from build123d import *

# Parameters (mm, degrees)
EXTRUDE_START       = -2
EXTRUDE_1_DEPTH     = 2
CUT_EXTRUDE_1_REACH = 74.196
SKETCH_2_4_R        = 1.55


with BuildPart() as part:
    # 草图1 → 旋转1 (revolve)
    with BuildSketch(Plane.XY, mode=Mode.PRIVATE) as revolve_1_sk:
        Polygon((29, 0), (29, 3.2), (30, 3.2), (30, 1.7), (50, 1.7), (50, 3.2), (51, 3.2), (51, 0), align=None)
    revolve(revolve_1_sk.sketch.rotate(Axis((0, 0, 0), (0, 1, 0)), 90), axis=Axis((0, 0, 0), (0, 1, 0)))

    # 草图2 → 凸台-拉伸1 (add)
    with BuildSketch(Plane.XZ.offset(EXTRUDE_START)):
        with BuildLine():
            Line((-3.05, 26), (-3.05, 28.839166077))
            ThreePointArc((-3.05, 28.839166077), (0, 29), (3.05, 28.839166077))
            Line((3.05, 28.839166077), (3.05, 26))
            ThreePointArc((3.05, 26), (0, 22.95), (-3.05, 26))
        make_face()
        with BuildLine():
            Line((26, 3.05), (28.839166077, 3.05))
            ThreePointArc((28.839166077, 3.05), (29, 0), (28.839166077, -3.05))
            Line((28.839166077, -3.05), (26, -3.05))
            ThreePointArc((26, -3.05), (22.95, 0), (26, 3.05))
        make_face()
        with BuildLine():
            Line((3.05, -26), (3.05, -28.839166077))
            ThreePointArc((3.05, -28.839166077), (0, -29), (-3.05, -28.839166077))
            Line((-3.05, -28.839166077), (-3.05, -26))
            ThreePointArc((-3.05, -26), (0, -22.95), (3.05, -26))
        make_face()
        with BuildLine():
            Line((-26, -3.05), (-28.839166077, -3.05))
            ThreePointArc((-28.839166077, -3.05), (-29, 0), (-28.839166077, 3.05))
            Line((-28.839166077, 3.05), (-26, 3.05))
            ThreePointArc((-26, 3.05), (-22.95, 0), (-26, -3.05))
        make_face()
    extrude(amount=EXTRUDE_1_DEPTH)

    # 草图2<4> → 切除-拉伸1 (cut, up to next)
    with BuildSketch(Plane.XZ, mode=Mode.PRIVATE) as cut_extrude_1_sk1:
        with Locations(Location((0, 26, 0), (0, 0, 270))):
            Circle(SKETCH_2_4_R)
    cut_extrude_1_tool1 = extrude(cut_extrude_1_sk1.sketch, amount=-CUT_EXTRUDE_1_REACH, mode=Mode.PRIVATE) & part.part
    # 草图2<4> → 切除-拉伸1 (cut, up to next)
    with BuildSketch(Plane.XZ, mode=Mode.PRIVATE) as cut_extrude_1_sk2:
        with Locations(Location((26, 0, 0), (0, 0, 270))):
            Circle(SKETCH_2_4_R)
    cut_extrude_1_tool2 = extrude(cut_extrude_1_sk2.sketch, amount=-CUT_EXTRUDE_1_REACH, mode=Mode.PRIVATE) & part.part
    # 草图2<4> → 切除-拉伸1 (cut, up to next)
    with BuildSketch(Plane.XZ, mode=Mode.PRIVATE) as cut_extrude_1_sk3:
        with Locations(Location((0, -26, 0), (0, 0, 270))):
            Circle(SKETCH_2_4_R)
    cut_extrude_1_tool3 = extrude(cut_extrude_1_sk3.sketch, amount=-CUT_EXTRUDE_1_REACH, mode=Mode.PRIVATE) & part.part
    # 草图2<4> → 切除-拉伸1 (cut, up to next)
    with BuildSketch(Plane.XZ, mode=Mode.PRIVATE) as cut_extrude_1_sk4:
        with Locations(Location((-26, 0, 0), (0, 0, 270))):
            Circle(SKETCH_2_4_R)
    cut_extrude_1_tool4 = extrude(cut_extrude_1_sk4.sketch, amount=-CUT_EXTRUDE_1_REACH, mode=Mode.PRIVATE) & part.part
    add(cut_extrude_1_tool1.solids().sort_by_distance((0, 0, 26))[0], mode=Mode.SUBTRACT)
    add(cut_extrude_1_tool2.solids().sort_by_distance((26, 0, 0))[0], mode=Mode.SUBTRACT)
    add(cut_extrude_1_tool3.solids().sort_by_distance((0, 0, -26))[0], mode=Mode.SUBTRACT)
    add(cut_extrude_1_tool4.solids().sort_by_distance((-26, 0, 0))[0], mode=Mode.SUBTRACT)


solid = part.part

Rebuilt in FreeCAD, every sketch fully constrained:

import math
import FreeCAD as App
import Part
import Sketcher
from FreeCAD import Vector
Q = App.Units.Quantity


def add_polygon(sketch, points):
    """Adds a closed chain of lines whose ends are joined by coincident constraints."""
    first, n = sketch.GeometryCount, len(points)
    for a, b in zip(points, points[1:] + points[:1]):
        sketch.addGeometry(Part.LineSegment(App.Vector(*a, 0), App.Vector(*b, 0)), False)
    for i in range(n):
        sketch.addConstraint(Sketcher.Constraint("Coincident", first + i, 2, first + (i + 1) % n, 1))

doc = App.newDocument("Part")
body = doc.addObject("PartDesign::Body", "Body")

sketch1 = body.newObject("Sketcher::SketchObject", "Sketch")
sketch1.AttachmentSupport = (doc.getObject("XY_Plane"), [""])
sketch1.MapMode = "FlatFace"
add_polygon(sketch1, [(29, 3.2), (29, 0), (51, 0), (51, 3.2), (50, 3.2), (50, 1.7), (30, 1.7), (30, 3.2)])
sketch1.addConstraint(Sketcher.Constraint("Vertical", 0))
sketch1.addConstraint(Sketcher.Constraint("Horizontal", 1))
sketch1.addConstraint(Sketcher.Constraint("Vertical", 2))
sketch1.addConstraint(Sketcher.Constraint("Horizontal", 3))
sketch1.addConstraint(Sketcher.Constraint("Vertical", 4))
sketch1.addConstraint(Sketcher.Constraint("Horizontal", 5))
sketch1.addConstraint(Sketcher.Constraint("Vertical", 6))
sketch1.addConstraint(Sketcher.Constraint("Horizontal", 7))
sketch1.addConstraint(Sketcher.Constraint("PointOnObject", 0, 2, -1))
sketch1.addConstraint(Sketcher.Constraint("Horizontal", 3, 2, 6, 2))
sketch1.addConstraint(Sketcher.Constraint("Equal", 3, 7))
sketch1.addConstraint(Sketcher.Constraint("DistanceX", 1, 1, 1, 2, Q("22 mm")))
sketch1.addConstraint(Sketcher.Constraint("DistanceX", 3, 2, 3, 1, Q("1 mm")))
sketch1.addConstraint(Sketcher.Constraint("DistanceY", 0, 2, 0, 1, Q("3.2 mm")))
sketch1.addConstraint(Sketcher.Constraint("DistanceY", 4, 2, 4, 1, Q("1.5 mm")))
sketch1.addConstraint(Sketcher.Constraint("DistanceX", -1, 1, 0, 2, Q("29 mm")))
revolution = body.newObject("PartDesign::Revolution", "Revolution")
revolution.Profile = sketch1
revolution.ReferenceAxis = (sketch1, ["V_Axis"])
revolution.Angle = 360

sketch2 = body.newObject("Sketcher::SketchObject", "Sketch001")
sketch2.AttachmentSupport = (doc.getObject("XZ_Plane"), [""])
sketch2.MapMode = "FlatFace"
sketch2.AttachmentOffset = App.Placement(Vector(0, 0, -2), App.Rotation())
sketch2.addGeometry(Part.LineSegment(Vector(-3, 28.8, 0), Vector(-3, 26, 0)), False)
sketch2.addGeometry(Part.ArcOfCircle(Part.Circle(Vector(0, 26, 0), Vector(0, 0, 1), 3), math.radians(180), math.radians(360)), False)
sketch2.addGeometry(Part.LineSegment(Vector(3, 26, 0), Vector(3, 28.8, 0)), False)
sketch2.addGeometry(Part.ArcOfCircle(Part.Circle(Vector(0, 0, 0), Vector(0, 0, 1), 29), math.radians(83.96), math.radians(96.04)), False)
sketch2.addGeometry(Part.LineSegment(Vector(28.8, 3, 0), Vector(26, 3, 0)), False)
sketch2.addGeometry(Part.ArcOfCircle(Part.Circle(Vector(26, 0, 0), Vector(0, 0, 1), 3), math.radians(90), math.radians(270)), False)
sketch2.addGeometry(Part.LineSegment(Vector(26, -3, 0), Vector(28.8, -3, 0)), False)
sketch2.addGeometry(Part.ArcOfCircle(Part.Circle(Vector(0, 0, 0), Vector(0, 0, 1), 29), math.radians(-6.04), math.radians(6.04)), False)
sketch2.addGeometry(Part.LineSegment(Vector(3, -28.8, 0), Vector(3, -26, 0)), False)
sketch2.addGeometry(Part.ArcOfCircle(Part.Circle(Vector(0, -26, 0), Vector(0, 0, 1), 3), math.radians(0), math.radians(180)), False)
sketch2.addGeometry(Part.LineSegment(Vector(-3, -26, 0), Vector(-3, -28.8, 0)), False)
sketch2.addGeometry(Part.ArcOfCircle(Part.Circle(Vector(0, 0, 0), Vector(0, 0, 1), 29), math.radians(-96.04), math.radians(-83.96)), False)
sketch2.addGeometry(Part.LineSegment(Vector(-28.8, -3, 0), Vector(-26, -3, 0)), False)
sketch2.addGeometry(Part.ArcOfCircle(Part.Circle(Vector(-26, 0, 0), Vector(0, 0, 1), 3), math.radians(-90), math.radians(90)), False)
sketch2.addGeometry(Part.LineSegment(Vector(-26, 3, 0), Vector(-28.8, 3, 0)), False)
sketch2.addGeometry(Part.ArcOfCircle(Part.Circle(Vector(0, 0, 0), Vector(0, 0, 1), 29), math.radians(173.96), math.radians(186.04)), False)
sketch2.addConstraint(Sketcher.Constraint("Tangent", 0, 2, 1, 1))
sketch2.addConstraint(Sketcher.Constraint("Tangent", 1, 2, 2, 1))
sketch2.addConstraint(Sketcher.Constraint("Coincident", 2, 2, 3, 1))
sketch2.addConstraint(Sketcher.Constraint("Coincident", 3, 2, 0, 1))
sketch2.addConstraint(Sketcher.Constraint("Tangent", 4, 2, 5, 1))
sketch2.addConstraint(Sketcher.Constraint("Tangent", 5, 2, 6, 1))
sketch2.addConstraint(Sketcher.Constraint("Coincident", 6, 2, 7, 1))
sketch2.addConstraint(Sketcher.Constraint("Coincident", 7, 2, 4, 1))
sketch2.addConstraint(Sketcher.Constraint("Tangent", 8, 2, 9, 1))
sketch2.addConstraint(Sketcher.Constraint("Tangent", 9, 2, 10, 1))
sketch2.addConstraint(Sketcher.Constraint("Coincident", 10, 2, 11, 1))
sketch2.addConstraint(Sketcher.Constraint("Coincident", 11, 2, 8, 1))
sketch2.addConstraint(Sketcher.Constraint("Tangent", 12, 2, 13, 1))
sketch2.addConstraint(Sketcher.Constraint("Tangent", 13, 2, 14, 1))
sketch2.addConstraint(Sketcher.Constraint("Coincident", 14, 2, 15, 1))
sketch2.addConstraint(Sketcher.Constraint("Coincident", 15, 2, 12, 1))
sketch2.addConstraint(Sketcher.Constraint("Vertical", 0))
sketch2.addConstraint(Sketcher.Constraint("Vertical", 2))
sketch2.addConstraint(Sketcher.Constraint("Horizontal", 4))
sketch2.addConstraint(Sketcher.Constraint("Horizontal", 6))
sketch2.addConstraint(Sketcher.Constraint("Vertical", 8))
sketch2.addConstraint(Sketcher.Constraint("Vertical", 10))
sketch2.addConstraint(Sketcher.Constraint("Horizontal", 12))
sketch2.addConstraint(Sketcher.Constraint("Horizontal", 14))
sketch2.addConstraint(Sketcher.Constraint("Coincident", 3, 3, -1, 1))
sketch2.addConstraint(Sketcher.Constraint("Coincident", 7, 3, -1, 1))
sketch2.addConstraint(Sketcher.Constraint("Coincident", 11, 3, -1, 1))
sketch2.addConstraint(Sketcher.Constraint("Coincident", 15, 3, -1, 1))
sketch2.addConstraint(Sketcher.Constraint("Equal", 1, 5))
sketch2.addConstraint(Sketcher.Constraint("Equal", 3, 7))
sketch2.addConstraint(Sketcher.Constraint("Equal", 5, 9))
sketch2.addConstraint(Sketcher.Constraint("Equal", 7, 11))
sketch2.addConstraint(Sketcher.Constraint("Equal", 9, 13))
sketch2.addConstraint(Sketcher.Constraint("Equal", 11, 15))
sketch2.addConstraint(Sketcher.Constraint("Symmetric", 1, 3, 9, 3, -1, 1))
sketch2.addConstraint(Sketcher.Constraint("Symmetric", 5, 3, 13, 3, -1, 1))
sketch2.addConstraint(Sketcher.Constraint("PointOnObject", 1, 3, -2))
sketch2.addConstraint(Sketcher.Constraint("PointOnObject", 5, 3, -1))
sketch2.addConstraint(Sketcher.Constraint("Equal", 14, 0))
sketch2.addConstraint(Sketcher.Constraint("Radius", 3, Q("29 mm")))
sketch2.addConstraint(Sketcher.Constraint("Radius", 1, Q("3.05 mm")))
sketch2.addConstraint(Sketcher.Constraint("DistanceY", -1, 1, 1, 3, Q("26 mm")))
pad1 = body.newObject("PartDesign::Pad", "Pad")
pad1.Profile = sketch2
pad1.Length = 2

sketch3 = body.newObject("Sketcher::SketchObject", "Sketch002")
sketch3.AttachmentSupport = (doc.getObject("XZ_Plane"), [""])
sketch3.MapMode = "FlatFace"
sketch3.addGeometry(Part.Circle(Vector(0, 26, 0), Vector(0, 0, 1), 1.6), False)
sketch3.addConstraint(Sketcher.Constraint("PointOnObject", 0, 3, -2))
sketch3.addConstraint(Sketcher.Constraint("Diameter", 0, Q("3.1 mm")))
sketch3.addConstraint(Sketcher.Constraint("DistanceY", -1, 1, 0, 3, Q("26 mm")))
pocket1 = body.newObject("PartDesign::Pocket", "Pocket")
pocket1.Profile = sketch3
pocket1.Type = "UpToFirst"

sketch4 = body.newObject("Sketcher::SketchObject", "Sketch003")
sketch4.AttachmentSupport = (doc.getObject("XZ_Plane"), [""])
sketch4.MapMode = "FlatFace"
sketch4.addGeometry(Part.Circle(Vector(26, 0, 0), Vector(0, 0, 1), 1.6), False)
sketch4.addConstraint(Sketcher.Constraint("PointOnObject", 0, 3, -1))
sketch4.addConstraint(Sketcher.Constraint("Diameter", 0, Q("3.1 mm")))
sketch4.addConstraint(Sketcher.Constraint("DistanceX", -1, 1, 0, 3, Q("26 mm")))
pocket2 = body.newObject("PartDesign::Pocket", "Pocket001")
pocket2.Profile = sketch4
pocket2.Type = "UpToFirst"

sketch5 = body.newObject("Sketcher::SketchObject", "Sketch004")
sketch5.AttachmentSupport = (doc.getObject("XZ_Plane"), [""])
sketch5.MapMode = "FlatFace"
sketch5.addGeometry(Part.Circle(Vector(0, -26, 0), Vector(0, 0, 1), 1.6), False)
sketch5.addConstraint(Sketcher.Constraint("PointOnObject", 0, 3, -2))
sketch5.addConstraint(Sketcher.Constraint("Diameter", 0, Q("3.1 mm")))
sketch5.addConstraint(Sketcher.Constraint("DistanceY", 0, 3, -1, 1, Q("26 mm")))
pocket3 = body.newObject("PartDesign::Pocket", "Pocket002")
pocket3.Profile = sketch5
pocket3.Type = "UpToFirst"

sketch6 = body.newObject("Sketcher::SketchObject", "Sketch005")
sketch6.AttachmentSupport = (doc.getObject("XZ_Plane"), [""])
sketch6.MapMode = "FlatFace"
sketch6.addGeometry(Part.Circle(Vector(-26, 0, 0), Vector(0, 0, 1), 1.6), False)
sketch6.addConstraint(Sketcher.Constraint("PointOnObject", 0, 3, -1))
sketch6.addConstraint(Sketcher.Constraint("Diameter", 0, Q("3.1 mm")))
sketch6.addConstraint(Sketcher.Constraint("DistanceX", 0, 3, -1, 1, Q("26 mm")))
pocket4 = body.newObject("PartDesign::Pocket", "Pocket003")
pocket4.Profile = sketch6
pocket4.Type = "UpToFirst"

doc.recompute()
